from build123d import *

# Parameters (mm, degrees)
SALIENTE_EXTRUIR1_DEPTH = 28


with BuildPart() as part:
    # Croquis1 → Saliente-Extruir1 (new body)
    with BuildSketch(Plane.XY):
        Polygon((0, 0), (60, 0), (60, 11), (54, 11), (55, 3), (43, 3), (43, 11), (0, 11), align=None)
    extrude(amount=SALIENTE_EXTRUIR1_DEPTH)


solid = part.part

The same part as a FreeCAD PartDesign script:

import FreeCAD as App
import Part
import Sketcher
Q = App.Units.Quantity

doc = App.newDocument("Part")
body = doc.addObject("PartDesign::Body", "Body")

sketch1 = body.newObject("Sketcher::SketchObject", "Sketch")
sketch1.AttachmentSupport = (doc.getObject("XY_Plane"), [""])
sketch1.MapMode = "FlatFace"
sketch1.addGeometry(Part.LineSegment(App.Vector(0, 0, 0), App.Vector(60, 0, 0)), False)
sketch1.addGeometry(Part.LineSegment(App.Vector(60, 0, 0), App.Vector(60, 11, 0)), False)
sketch1.addGeometry(Part.LineSegment(App.Vector(60, 11, 0), App.Vector(54, 11, 0)), False)
sketch1.addGeometry(Part.LineSegment(App.Vector(54, 11, 0), App.Vector(55, 3, 0)), False)
sketch1.addGeometry(Part.LineSegment(App.Vector(55, 3, 0), App.Vector(43, 3, 0)), False)
sketch1.addGeometry(Part.LineSegment(App.Vector(43, 3, 0), App.Vector(43, 11, 0)), False)
sketch1.addGeometry(Part.LineSegment(App.Vector(43, 11, 0), App.Vector(0, 11, 0)), False)
sketch1.addGeometry(Part.LineSegment(App.Vector(0, 11, 0), App.Vector(0, 0, 0)), False)
sketch1.addConstraint(Sketcher.Constraint("Coincident", 0, 2, 1, 1))
sketch1.addConstraint(Sketcher.Constraint("Coincident", 1, 2, 2, 1))
sketch1.addConstraint(Sketcher.Constraint("Coincident", 2, 2, 3, 1))
sketch1.addConstraint(Sketcher.Constraint("Coincident", 3, 2, 4, 1))
sketch1.addConstraint(Sketcher.Constraint("Coincident", 4, 2, 5, 1))
sketch1.addConstraint(Sketcher.Constraint("Coincident", 5, 2, 6, 1))
sketch1.addConstraint(Sketcher.Constraint("Coincident", 6, 2, 7, 1))
sketch1.addConstraint(Sketcher.Constraint("Coincident", 7, 2, 0, 1))
sketch1.addConstraint(Sketcher.Constraint("Horizontal", 0))
sketch1.addConstraint(Sketcher.Constraint("Vertical", 1))
sketch1.addConstraint(Sketcher.Constraint("Horizontal", 2))
sketch1.addConstraint(Sketcher.Constraint("Horizontal", 4))
sketch1.addConstraint(Sketcher.Constraint("Vertical", 5))
sketch1.addConstraint(Sketcher.Constraint("Horizontal", 6))
sketch1.addConstraint(Sketcher.Constraint("Vertical", 7))
sketch1.addConstraint(Sketcher.Constraint("Coincident", 7, 2, -1, 1))
sketch1.addConstraint(Sketcher.Constraint("Horizontal", 2, 2, 5, 2))
sketch1.addConstraint(Sketcher.Constraint("DistanceX", 0, 1, 0, 2, Q("60 mm")))
sketch1.addConstraint(Sketcher.Constraint("DistanceX", 2, 2, 2, 1, Q("6 mm")))
sketch1.addConstraint(Sketcher.Constraint("DistanceX", 4, 2, 4, 1, Q("12 mm")))
sketch1.addConstraint(Sketcher.Constraint("DistanceX", 6, 2, 6, 1, Q("43 mm")))
sketch1.addConstraint(Sketcher.Constraint("DistanceY", 1, 1, 1, 2, Q("11 mm")))
sketch1.addConstraint(Sketcher.Constraint("DistanceY", 5, 1, 5, 2, Q("8 mm")))
pad1 = body.newObject("PartDesign::Pad", "Pad")
pad1.Profile = sketch1
pad1.Length = 28

doc.recompute()
